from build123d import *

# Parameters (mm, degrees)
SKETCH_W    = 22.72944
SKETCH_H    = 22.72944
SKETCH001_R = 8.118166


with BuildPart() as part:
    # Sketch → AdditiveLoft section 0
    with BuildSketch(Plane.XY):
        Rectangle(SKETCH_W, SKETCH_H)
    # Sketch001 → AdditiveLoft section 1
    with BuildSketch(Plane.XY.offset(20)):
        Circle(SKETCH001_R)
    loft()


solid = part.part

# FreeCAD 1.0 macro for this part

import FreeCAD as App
import Part
import Sketcher
Q = App.Units.Quantity

doc = App.newDocument("Part")
body = doc.addObject("PartDesign::Body", "Body")

# Sketch on XY plane
sketch1 = doc.addObject("Sketcher::SketchObject", "Sketch")
body.addObject(sketch1)
sketch1.AttachmentSupport = (doc.XY_Plane, [""])
sketch1.MapMode = "FlatFace"
sketch1.addGeometry([
    Part.LineSegment(App.Vector(-11, 11, 0), App.Vector(-11, -11, 0)),
    Part.LineSegment(App.Vector(-11, -11, 0), App.Vector(11, -11, 0)),
    Part.LineSegment(App.Vector(11, -11, 0), App.Vector(11, 11, 0)),
    Part.LineSegment(App.Vector(11, 11, 0), App.Vector(-11, 11, 0)),
], False)
sketch1.addConstraint([
    Sketcher.Constraint("Coincident", 0, 2, 1, 1),
    Sketcher.Constraint("Coincident", 1, 2, 2, 1),
    Sketcher.Constraint("Coincident", 2, 2, 3, 1),
    Sketcher.Constraint("Coincident", 3, 2, 0, 1),
    Sketcher.Constraint("Vertical", 0),
    Sketcher.Constraint("Horizontal", 1),
    Sketcher.Constraint("Vertical", 2),
    Sketcher.Constraint("Horizontal", 3),
    Sketcher.Constraint("Symmetric", 0, 2, 2, 2, -1, 1),
    Sketcher.Constraint("Equal", 3, 0),
    Sketcher.Constraint("DistanceX", 1, 1, 1, 2, Q("22.72944 mm")),
])

# Sketch on XY plane
sketch2 = doc.addObject("Sketcher::SketchObject", "Sketch001")
body.addObject(sketch2)
sketch2.AttachmentSupport = (doc.XY_Plane, [""])
sketch2.MapMode = "FlatFace"
sketch2.AttachmentOffset = App.Placement(App.Vector(0, 0, 20), App.Rotation())
sketch2.addGeometry(Part.Circle(App.Vector(0, 0, 0), App.Vector(0, 0, 1), 8), False)
sketch2.addConstraint([
    Sketcher.Constraint("Coincident", 0, 3, -1, 1),
    Sketcher.Constraint("Diameter", 0, Q("16.236332 mm")),
])

additiveloft = doc.addObject("PartDesign::AdditiveLoft", "AdditiveLoft")
body.addObject(additiveloft)
additiveloft.Profile = sketch1
additiveloft.Sections = [sketch2]

doc.recompute()
